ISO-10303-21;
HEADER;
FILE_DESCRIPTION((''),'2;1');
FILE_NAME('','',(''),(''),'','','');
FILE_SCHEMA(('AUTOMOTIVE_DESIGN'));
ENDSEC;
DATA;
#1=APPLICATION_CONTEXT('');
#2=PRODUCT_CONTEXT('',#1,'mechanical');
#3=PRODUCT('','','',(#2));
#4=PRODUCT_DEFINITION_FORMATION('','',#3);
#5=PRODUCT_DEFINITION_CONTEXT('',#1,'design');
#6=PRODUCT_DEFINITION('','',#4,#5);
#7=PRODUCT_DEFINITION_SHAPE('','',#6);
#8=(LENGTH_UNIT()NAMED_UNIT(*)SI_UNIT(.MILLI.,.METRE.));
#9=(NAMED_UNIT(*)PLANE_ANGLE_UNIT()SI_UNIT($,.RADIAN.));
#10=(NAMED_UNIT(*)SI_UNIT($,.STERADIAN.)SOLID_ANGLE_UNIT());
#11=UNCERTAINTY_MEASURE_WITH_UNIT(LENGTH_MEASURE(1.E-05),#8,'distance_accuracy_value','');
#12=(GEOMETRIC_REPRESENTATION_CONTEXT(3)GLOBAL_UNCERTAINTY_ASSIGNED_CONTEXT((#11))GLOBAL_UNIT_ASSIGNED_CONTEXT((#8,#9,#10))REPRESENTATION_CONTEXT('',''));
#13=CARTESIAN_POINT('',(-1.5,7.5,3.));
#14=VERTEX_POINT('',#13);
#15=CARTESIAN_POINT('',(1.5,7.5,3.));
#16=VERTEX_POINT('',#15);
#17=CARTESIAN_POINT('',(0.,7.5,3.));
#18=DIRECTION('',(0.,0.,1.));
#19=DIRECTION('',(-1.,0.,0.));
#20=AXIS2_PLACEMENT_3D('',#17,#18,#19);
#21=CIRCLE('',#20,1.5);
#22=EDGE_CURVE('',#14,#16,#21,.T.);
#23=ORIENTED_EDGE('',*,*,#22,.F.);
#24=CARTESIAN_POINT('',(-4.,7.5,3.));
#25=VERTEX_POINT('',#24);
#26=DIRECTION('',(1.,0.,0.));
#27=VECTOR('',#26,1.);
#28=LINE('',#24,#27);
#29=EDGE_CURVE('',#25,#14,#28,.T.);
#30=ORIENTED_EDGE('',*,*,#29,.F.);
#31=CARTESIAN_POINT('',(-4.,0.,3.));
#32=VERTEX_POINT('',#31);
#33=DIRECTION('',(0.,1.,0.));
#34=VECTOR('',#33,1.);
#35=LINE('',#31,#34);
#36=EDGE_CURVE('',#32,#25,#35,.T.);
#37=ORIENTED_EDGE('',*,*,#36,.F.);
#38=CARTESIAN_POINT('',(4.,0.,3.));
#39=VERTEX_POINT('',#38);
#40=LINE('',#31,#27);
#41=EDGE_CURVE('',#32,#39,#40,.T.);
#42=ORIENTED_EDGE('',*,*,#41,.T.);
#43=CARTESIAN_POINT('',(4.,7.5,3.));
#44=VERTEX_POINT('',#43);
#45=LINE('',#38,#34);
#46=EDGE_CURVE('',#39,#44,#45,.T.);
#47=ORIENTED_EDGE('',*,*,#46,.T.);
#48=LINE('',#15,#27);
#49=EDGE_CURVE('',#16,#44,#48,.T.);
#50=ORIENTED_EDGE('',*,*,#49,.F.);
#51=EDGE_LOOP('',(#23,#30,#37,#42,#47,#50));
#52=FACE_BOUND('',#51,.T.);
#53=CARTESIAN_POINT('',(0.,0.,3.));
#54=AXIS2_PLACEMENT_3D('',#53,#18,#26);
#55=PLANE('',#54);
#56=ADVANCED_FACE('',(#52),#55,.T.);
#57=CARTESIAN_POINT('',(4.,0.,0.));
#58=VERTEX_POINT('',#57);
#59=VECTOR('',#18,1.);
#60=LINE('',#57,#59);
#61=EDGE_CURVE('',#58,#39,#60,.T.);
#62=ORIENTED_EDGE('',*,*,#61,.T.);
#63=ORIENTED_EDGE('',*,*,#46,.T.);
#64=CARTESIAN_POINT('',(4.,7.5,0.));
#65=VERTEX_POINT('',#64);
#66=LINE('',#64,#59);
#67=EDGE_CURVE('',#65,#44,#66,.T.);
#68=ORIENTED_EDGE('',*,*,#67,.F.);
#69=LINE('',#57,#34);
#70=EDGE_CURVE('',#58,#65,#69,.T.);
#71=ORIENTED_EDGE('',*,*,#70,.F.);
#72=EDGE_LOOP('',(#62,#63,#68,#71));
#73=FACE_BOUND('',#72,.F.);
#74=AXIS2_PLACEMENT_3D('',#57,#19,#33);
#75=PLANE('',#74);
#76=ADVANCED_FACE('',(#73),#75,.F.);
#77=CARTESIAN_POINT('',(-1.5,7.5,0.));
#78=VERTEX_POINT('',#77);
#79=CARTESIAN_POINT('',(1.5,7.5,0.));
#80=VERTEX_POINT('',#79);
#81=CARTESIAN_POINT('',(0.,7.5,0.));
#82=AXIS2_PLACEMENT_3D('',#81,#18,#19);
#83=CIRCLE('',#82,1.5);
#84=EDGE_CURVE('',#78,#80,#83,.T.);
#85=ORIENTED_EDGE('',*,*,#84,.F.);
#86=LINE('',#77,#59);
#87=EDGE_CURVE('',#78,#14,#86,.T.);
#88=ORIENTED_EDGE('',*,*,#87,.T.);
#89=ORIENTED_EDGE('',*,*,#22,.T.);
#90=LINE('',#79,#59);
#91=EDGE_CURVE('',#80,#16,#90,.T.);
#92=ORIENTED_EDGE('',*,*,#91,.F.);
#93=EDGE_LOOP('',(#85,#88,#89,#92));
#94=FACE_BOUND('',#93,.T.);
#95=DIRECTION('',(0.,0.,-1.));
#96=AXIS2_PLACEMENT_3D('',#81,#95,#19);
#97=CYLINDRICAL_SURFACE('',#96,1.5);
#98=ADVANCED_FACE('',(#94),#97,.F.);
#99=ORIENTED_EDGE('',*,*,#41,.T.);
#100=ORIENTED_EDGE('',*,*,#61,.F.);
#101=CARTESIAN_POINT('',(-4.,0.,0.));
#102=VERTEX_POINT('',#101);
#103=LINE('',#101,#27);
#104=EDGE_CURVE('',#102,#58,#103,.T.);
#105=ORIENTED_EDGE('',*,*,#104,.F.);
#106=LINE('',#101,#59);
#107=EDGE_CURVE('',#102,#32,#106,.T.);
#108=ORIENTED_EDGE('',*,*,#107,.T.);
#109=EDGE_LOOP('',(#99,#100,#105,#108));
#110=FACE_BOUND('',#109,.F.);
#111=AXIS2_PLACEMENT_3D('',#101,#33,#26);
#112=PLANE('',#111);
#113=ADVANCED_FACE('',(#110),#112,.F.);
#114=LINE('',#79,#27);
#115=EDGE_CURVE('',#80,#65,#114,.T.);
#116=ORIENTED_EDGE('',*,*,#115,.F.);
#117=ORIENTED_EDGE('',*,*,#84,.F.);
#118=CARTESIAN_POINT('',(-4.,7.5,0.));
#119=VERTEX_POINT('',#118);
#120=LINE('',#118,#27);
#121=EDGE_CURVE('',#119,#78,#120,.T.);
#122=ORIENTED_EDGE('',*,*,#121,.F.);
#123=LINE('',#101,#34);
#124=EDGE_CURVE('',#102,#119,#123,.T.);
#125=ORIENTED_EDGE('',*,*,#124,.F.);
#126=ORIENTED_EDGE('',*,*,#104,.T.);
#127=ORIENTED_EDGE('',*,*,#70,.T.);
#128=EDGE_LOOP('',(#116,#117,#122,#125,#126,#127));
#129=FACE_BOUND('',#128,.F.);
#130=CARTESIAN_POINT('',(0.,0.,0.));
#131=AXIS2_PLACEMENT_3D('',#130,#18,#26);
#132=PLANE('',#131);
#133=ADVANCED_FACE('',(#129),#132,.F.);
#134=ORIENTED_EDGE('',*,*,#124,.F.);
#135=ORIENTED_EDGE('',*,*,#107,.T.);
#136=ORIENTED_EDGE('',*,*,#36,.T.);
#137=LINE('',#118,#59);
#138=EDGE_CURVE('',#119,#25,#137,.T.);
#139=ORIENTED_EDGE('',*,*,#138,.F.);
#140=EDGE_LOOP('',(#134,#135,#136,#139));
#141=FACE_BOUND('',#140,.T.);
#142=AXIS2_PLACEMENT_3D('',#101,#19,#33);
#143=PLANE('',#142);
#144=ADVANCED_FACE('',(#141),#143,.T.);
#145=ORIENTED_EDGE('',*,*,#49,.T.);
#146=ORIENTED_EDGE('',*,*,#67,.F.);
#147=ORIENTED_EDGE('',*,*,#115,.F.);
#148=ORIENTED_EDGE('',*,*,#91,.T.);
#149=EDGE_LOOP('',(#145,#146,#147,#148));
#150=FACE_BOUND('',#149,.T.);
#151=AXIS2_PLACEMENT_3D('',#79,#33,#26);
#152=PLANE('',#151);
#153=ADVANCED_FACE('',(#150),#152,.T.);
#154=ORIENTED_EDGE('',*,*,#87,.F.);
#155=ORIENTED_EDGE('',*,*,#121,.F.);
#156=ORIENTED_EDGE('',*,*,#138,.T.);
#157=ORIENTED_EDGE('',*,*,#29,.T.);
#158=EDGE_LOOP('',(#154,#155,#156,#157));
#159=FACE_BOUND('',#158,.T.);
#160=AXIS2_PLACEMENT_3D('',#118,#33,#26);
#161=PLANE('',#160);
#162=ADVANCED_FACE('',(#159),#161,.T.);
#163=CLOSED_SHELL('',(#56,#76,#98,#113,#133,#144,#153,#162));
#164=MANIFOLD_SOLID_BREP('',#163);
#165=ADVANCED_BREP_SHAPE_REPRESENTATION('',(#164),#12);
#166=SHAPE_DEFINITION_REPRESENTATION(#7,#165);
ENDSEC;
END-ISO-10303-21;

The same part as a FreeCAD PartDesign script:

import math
import FreeCAD as App
import Part
import Sketcher
from FreeCAD import Vector

doc = App.newDocument("Part")
body = doc.addObject("PartDesign::Body", "Body")

sketch1 = body.newObject("Sketcher::SketchObject", "Sketch")
sketch1.AttachmentSupport = (doc.getObject("XY_Plane"), [""])
sketch1.MapMode = "FlatFace"
sketch1.addGeometry([
    Part.LineSegment(Vector(-4, 7.5, 0), Vector(-4, 0, 0)),
    Part.LineSegment(Vector(-4, 0, 0), Vector(4, 0, 0)),
    Part.LineSegment(Vector(4, 0, 0), Vector(4, 7.5, 0)),
    Part.LineSegment(Vector(4, 7.5, 0), Vector(1.5, 7.5, 0)),
    Part.ArcOfCircle(Part.Circle(Vector(0, 7.5, 0), Vector(0, 0, 1), 1.5), math.radians(180), math.radians(360)),
    Part.LineSegment(Vector(-1.5, 7.5, 0), Vector(-4, 7.5, 0)),
], False)
sketch1.addConstraint([
    Sketcher.Constraint("Coincident", 0, 2, 1, 1),
    Sketcher.Constraint("Coincident", 1, 2, 2, 1),
    Sketcher.Constraint("Coincident", 2, 2, 3, 1),
    Sketcher.Constraint("Coincident", 3, 2, 4, 2),
    Sketcher.Constraint("Coincident", 4, 1, 5, 1),
    Sketcher.Constraint("Coincident", 5, 2, 0, 1),
    Sketcher.Constraint("Vertical", 0),
    Sketcher.Constraint("Horizontal", 1),
    Sketcher.Constraint("Vertical", 2),
    Sketcher.Constraint("Horizontal", 3),
    Sketcher.Constraint("Horizontal", 5),
    Sketcher.Constraint("Symmetric", 0, 2, 1, 2, -1, 1),
    Sketcher.Constraint("Symmetric", 3, 2, 4, 1, -2),
    Sketcher.Constraint("Horizontal", 4, 3, 2, 2),
    Sketcher.Constraint("Radius", 4, 1.5),
    Sketcher.Constraint("DistanceX", 1, 1, 1, 2, 8.0),
    Sketcher.Constraint("DistanceY", 0, 2, 0, 1, 7.5),
])
pad1 = body.newObject("PartDesign::Pad", "Pad")
pad1.Profile = sketch1
pad1.Length = 3

doc.recompute()
